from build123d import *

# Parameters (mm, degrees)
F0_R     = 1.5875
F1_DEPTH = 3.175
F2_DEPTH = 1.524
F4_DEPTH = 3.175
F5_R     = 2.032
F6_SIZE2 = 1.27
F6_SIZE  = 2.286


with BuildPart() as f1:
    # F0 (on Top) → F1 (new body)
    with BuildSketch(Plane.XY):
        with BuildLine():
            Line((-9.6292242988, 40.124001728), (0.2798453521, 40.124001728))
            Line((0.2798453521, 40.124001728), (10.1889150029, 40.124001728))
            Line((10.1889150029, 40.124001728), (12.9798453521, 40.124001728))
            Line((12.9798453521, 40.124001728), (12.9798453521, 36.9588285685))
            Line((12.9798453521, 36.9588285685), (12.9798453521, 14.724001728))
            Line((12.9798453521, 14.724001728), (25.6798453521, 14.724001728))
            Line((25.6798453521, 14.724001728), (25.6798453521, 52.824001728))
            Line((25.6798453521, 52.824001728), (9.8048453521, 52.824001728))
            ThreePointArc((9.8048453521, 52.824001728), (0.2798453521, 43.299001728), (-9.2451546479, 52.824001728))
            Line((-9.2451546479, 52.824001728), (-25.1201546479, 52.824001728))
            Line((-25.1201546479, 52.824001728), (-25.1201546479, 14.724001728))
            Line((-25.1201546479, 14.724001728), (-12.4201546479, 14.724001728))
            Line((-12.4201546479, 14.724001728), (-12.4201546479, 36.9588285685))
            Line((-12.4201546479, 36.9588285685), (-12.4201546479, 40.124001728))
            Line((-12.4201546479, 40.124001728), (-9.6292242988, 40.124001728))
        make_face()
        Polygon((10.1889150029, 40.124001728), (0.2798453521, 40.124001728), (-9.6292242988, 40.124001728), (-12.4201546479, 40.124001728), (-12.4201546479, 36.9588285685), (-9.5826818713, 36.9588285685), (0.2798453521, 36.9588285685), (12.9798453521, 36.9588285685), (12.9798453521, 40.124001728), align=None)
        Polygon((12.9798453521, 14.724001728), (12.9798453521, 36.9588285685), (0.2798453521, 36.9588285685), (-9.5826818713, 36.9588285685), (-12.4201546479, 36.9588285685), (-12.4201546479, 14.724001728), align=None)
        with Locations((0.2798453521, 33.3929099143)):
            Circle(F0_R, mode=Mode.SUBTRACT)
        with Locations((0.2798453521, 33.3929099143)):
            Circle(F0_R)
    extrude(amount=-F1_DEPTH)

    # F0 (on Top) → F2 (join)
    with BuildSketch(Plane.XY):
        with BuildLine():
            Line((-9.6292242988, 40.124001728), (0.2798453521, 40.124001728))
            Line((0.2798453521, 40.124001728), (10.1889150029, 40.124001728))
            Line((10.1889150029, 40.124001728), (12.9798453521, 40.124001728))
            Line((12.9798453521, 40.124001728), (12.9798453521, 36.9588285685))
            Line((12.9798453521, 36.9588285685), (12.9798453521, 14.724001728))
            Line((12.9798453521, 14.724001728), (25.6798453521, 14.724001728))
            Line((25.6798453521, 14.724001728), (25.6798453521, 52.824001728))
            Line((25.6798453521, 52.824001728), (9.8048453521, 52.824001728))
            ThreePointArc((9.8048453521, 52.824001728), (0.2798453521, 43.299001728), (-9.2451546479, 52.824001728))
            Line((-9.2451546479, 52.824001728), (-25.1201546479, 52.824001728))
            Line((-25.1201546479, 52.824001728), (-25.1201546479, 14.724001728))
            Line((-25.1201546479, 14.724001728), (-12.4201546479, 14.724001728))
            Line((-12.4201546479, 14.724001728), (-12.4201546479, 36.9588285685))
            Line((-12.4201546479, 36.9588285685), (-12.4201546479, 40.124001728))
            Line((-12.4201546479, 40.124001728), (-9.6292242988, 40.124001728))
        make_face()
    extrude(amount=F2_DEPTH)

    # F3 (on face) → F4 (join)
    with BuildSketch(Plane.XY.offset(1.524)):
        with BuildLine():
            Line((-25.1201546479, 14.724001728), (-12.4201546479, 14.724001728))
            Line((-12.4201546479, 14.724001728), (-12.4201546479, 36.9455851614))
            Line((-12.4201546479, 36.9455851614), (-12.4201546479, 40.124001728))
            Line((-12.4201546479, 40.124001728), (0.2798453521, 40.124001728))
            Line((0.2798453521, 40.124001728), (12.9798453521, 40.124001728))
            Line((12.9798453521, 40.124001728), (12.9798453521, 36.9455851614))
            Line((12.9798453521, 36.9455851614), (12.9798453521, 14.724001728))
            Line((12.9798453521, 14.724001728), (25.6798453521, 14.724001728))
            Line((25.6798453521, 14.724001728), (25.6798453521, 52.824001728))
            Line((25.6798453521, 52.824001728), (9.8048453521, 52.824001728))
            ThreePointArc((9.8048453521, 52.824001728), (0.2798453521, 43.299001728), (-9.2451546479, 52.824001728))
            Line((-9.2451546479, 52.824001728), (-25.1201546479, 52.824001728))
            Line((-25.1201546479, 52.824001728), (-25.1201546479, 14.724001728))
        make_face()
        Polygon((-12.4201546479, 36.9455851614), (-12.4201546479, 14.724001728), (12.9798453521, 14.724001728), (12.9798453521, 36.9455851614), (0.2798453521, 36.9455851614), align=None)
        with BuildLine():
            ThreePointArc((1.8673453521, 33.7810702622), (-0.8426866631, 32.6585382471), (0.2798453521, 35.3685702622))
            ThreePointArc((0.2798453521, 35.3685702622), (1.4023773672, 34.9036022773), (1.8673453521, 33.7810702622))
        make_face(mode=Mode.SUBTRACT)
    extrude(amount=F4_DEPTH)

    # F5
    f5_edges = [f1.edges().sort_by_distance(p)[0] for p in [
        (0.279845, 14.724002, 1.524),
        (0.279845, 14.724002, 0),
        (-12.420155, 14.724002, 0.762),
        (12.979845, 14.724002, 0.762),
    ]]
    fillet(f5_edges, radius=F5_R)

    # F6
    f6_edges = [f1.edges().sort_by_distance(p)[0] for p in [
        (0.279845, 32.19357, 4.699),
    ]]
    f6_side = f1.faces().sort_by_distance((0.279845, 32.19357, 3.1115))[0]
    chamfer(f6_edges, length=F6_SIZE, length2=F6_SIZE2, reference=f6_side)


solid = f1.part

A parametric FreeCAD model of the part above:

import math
import FreeCAD as App
import Part
import Sketcher
from FreeCAD import Vector
Q = App.Units.Quantity


def edges_at(feature, points):
    """Names of the edges that pass closest to the given points."""
    edges = feature.Shape.Edges
    near = lambda p: min(range(len(edges)), key=lambda i: edges[i].distToShape(Part.Vertex(*p))[0])
    return sorted({f"Edge{near(p) + 1}" for p in points})

doc = App.newDocument("Part")
body = doc.addObject("PartDesign::Body", "Body")

sketch1 = body.newObject("Sketcher::SketchObject", "Sketch")
sketch1.AttachmentSupport = (doc.getObject("XY_Plane"), [""])
sketch1.MapMode = "FlatFace"
sketch1.addGeometry([
    Part.LineSegment(Vector(25.679845, 14.724002, 0), Vector(25.679845, 52.824002, 0)),
    Part.LineSegment(Vector(25.679845, 52.824002, 0), Vector(9.804845, 52.824002, 0)),
    Part.ArcOfCircle(Part.Circle(Vector(0.279845, 52.824002, 0), Vector(0, 0, 1), 9.525), math.radians(180), math.radians(360)),
    Part.LineSegment(Vector(-9.245155, 52.824002, 0), Vector(-25.120155, 52.824002, 0)),
    Part.LineSegment(Vector(-25.120155, 52.824002, 0), Vector(-25.120155, 14.724002, 0)),
    Part.LineSegment(Vector(-25.120155, 14.724002, 0), Vector(25.679845, 14.724002, 0)),
], False)
sketch1.addConstraint([
    Sketcher.Constraint("Coincident", 0, 2, 1, 1),
    Sketcher.Constraint("Coincident", 1, 2, 2, 2),
    Sketcher.Constraint("Coincident", 2, 1, 3, 1),
    Sketcher.Constraint("Coincident", 3, 2, 4, 1),
    Sketcher.Constraint("Coincident", 4, 2, 5, 1),
    Sketcher.Constraint("Coincident", 5, 2, 0, 1),
    Sketcher.Constraint("Vertical", 0),
    Sketcher.Constraint("Horizontal", 1),
    Sketcher.Constraint("Horizontal", 3),
    Sketcher.Constraint("Vertical", 4),
    Sketcher.Constraint("Horizontal", 5),
    Sketcher.Constraint("Horizontal", 2, 3, 0, 2),
    Sketcher.Constraint("Horizontal", 1, 2, 2, 1),
    Sketcher.Constraint("Equal", 1, 3),
    Sketcher.Constraint("DistanceX", 5, 1, 5, 2, Q("2 in")),
    Sketcher.Constraint("DistanceY", 0, 1, 0, 2, Q("1.5 in")),
    Sketcher.Constraint("Radius", 2, Q("0.375 in")),
    Sketcher.Constraint("DistanceY", -1, 1, 2, 3, Q("52.824002 mm")),
    Sketcher.Constraint("DistanceX", -1, 1, 2, 3, Q("0.279845 mm")),
])
pad1 = body.newObject("PartDesign::Pad", "Pad")
pad1.Profile = sketch1
pad1.Length = Q("0.125 in")
pad1.Reversed = True

sketch2 = body.newObject("Sketcher::SketchObject", "Sketch001")
sketch2.AttachmentSupport = (doc.getObject("XY_Plane"), [""])
sketch2.MapMode = "FlatFace"
sketch2.addGeometry([
    Part.LineSegment(Vector(12.979845, 40.124002, 0), Vector(12.979845, 14.724002, 0)),
    Part.LineSegment(Vector(12.979845, 14.724002, 0), Vector(25.679845, 14.724002, 0)),
    Part.LineSegment(Vector(25.679845, 14.724002, 0), Vector(25.679845, 52.824002, 0)),
    Part.LineSegment(Vector(25.679845, 52.824002, 0), Vector(9.804845, 52.824002, 0)),
    Part.ArcOfCircle(Part.Circle(Vector(0.279845, 52.824002, 0), Vector(0, 0, 1), 9.525), math.radians(180), math.radians(360)),
    Part.LineSegment(Vector(-9.245155, 52.824002, 0), Vector(-25.120155, 52.824002, 0)),
    Part.LineSegment(Vector(-25.120155, 52.824002, 0), Vector(-25.120155, 14.724002, 0)),
    Part.LineSegment(Vector(-25.120155, 14.724002, 0), Vector(-12.420155, 14.724002, 0)),
    Part.LineSegment(Vector(-12.420155, 14.724002, 0), Vector(-12.420155, 40.124002, 0)),
    Part.LineSegment(Vector(-12.420155, 40.124002, 0), Vector(12.979845, 40.124002, 0)),
], False)
sketch2.addConstraint([
    Sketcher.Constraint("Coincident", 0, 2, 1, 1),
    Sketcher.Constraint("Coincident", 1, 2, 2, 1),
    Sketcher.Constraint("Coincident", 2, 2, 3, 1),
    Sketcher.Constraint("Coincident", 3, 2, 4, 2),
    Sketcher.Constraint("Coincident", 4, 1, 5, 1),
    Sketcher.Constraint("Coincident", 5, 2, 6, 1),
    Sketcher.Constraint("Coincident", 6, 2, 7, 1),
    Sketcher.Constraint("Coincident", 7, 2, 8, 1),
    Sketcher.Constraint("Coincident", 8, 2, 9, 1),
    Sketcher.Constraint("Coincident", 9, 2, 0, 1),
    Sketcher.Constraint("Vertical", 0),
    Sketcher.Constraint("Horizontal", 1),
    Sketcher.Constraint("Vertical", 2),
    Sketcher.Constraint("Horizontal", 3),
    Sketcher.Constraint("Horizontal", 5),
    Sketcher.Constraint("Vertical", 6),
    Sketcher.Constraint("Horizontal", 7),
    Sketcher.Constraint("Vertical", 8),
    Sketcher.Constraint("Horizontal", 9),
    Sketcher.Constraint("Horizontal", 4, 3, 2, 2),
    Sketcher.Constraint("Horizontal", 3, 2, 4, 1),
    Sketcher.Constraint("Horizontal", 1, 2, 6, 2),
    Sketcher.Constraint("Equal", 3, 5),
    Sketcher.Constraint("Equal", 1, 7),
    Sketcher.Constraint("Equal", 9, 0),
    Sketcher.Constraint("DistanceX", 9, 1, 9, 2, Q("1 in")),
    Sketcher.Constraint("DistanceX", 1, 1, 1, 2, Q("0.5 in")),
    Sketcher.Constraint("DistanceY", 2, 1, 2, 2, Q("1.5 in")),
    Sketcher.Constraint("Radius", 4, Q("0.375 in")),
    Sketcher.Constraint("DistanceY", -1, 1, 4, 3, Q("52.824002 mm")),
    Sketcher.Constraint("DistanceX", -1, 1, 4, 3, Q("0.279845 mm")),
])
pad2 = body.newObject("PartDesign::Pad", "Pad001")
pad2.Profile = sketch2
pad2.Length = Q("0.06 in")

sketch3 = body.newObject("Sketcher::SketchObject", "Sketch002")
sketch3.AttachmentSupport = (doc.getObject("XY_Plane"), [""])
sketch3.MapMode = "FlatFace"
sketch3.AttachmentOffset = App.Placement(Vector(0, 0, 0.06 * 25.4), App.Rotation())
sketch3.addGeometry([
    Part.LineSegment(Vector(-25.120155, 14.724002, 0), Vector(25.679845, 14.724002, 0)),
    Part.LineSegment(Vector(25.679845, 14.724002, 0), Vector(25.679845, 52.824002, 0)),
    Part.LineSegment(Vector(25.679845, 52.824002, 0), Vector(9.804845, 52.824002, 0)),
    Part.ArcOfCircle(Part.Circle(Vector(0.279845, 52.824002, 0), Vector(0, 0, 1), 9.525), math.radians(180), math.radians(360)),
    Part.LineSegment(Vector(-9.245155, 52.824002, 0), Vector(-25.120155, 52.824002, 0)),
    Part.LineSegment(Vector(-25.120155, 52.824002, 0), Vector(-25.120155, 14.724002, 0)),
    Part.ArcOfCircle(Part.Circle(Vector(0.279845, 33.78107, 0), Vector(0, 0, 1), 1.5875), math.radians(0), math.radians(90)),
    Part.ArcOfCircle(Part.Circle(Vector(0.279845, 33.78107, 0), Vector(0, 0, 1), 1.5875), math.radians(90), math.radians(360)),
    Part.LineSegment(Vector(-12.420155, 36.945585, 0), Vector(-12.420155, 40.124002, 0)),
    Part.LineSegment(Vector(-12.420155, 40.124002, 0), Vector(12.979845, 40.124002, 0)),
    Part.LineSegment(Vector(12.979845, 40.124002, 0), Vector(12.979845, 36.945585, 0)),
    Part.LineSegment(Vector(12.979845, 36.945585, 0), Vector(-12.420155, 36.945585, 0)),
], False)
sketch3.addConstraint([
    Sketcher.Constraint("Coincident", 0, 2, 1, 1),
    Sketcher.Constraint("Coincident", 1, 2, 2, 1),
    Sketcher.Constraint("Coincident", 2, 2, 3, 2),
    Sketcher.Constraint("Coincident", 3, 1, 4, 1),
    Sketcher.Constraint("Coincident", 4, 2, 5, 1),
    Sketcher.Constraint("Coincident", 5, 2, 0, 1),
    Sketcher.Constraint("Tangent", 6, 1, 7, 2),
    Sketcher.Constraint("Coincident", 7, 1, 6, 2),
    Sketcher.Constraint("Coincident", 8, 2, 9, 1),
    Sketcher.Constraint("Coincident", 9, 2, 10, 1),
    Sketcher.Constraint("Coincident", 10, 2, 11, 1),
    Sketcher.Constraint("Coincident", 11, 2, 8, 1),
    Sketcher.Constraint("Horizontal", 0),
    Sketcher.Constraint("Vertical", 1),
    Sketcher.Constraint("Horizontal", 2),
    Sketcher.Constraint("Horizontal", 4),
    Sketcher.Constraint("Vertical", 5),
    Sketcher.Constraint("Vertical", 8),
    Sketcher.Constraint("Horizontal", 9),
    Sketcher.Constraint("Vertical", 10),
    Sketcher.Constraint("Horizontal", 11),
    Sketcher.Constraint("Horizontal", 3, 3, 1, 2),
    Sketcher.Constraint("Horizontal", 2, 2, 3, 1),
    Sketcher.Constraint("Horizontal", 7, 3, 6, 1),
    Sketcher.Constraint("Vertical", 3, 3, 6, 3),
    Sketcher.Constraint("Vertical", 6, 3, 7, 1),
    Sketcher.Constraint("Equal", 2, 4),
    Sketcher.Constraint("DistanceX", 0, 1, 0, 2, Q("2 in")),
    Sketcher.Constraint("DistanceX", 9, 1, 9, 2, Q("1 in")),
    Sketcher.Constraint("DistanceY", 1, 1, 1, 2, Q("1.5 in")),
    Sketcher.Constraint("Radius", 3, Q("0.375 in")),
    Sketcher.Constraint("Radius", 6, Q("0.0625 in")),
    Sketcher.Constraint("DistanceY", 8, 2, 3, 1, Q("0.5 in")),
    Sketcher.Constraint("DistanceX", 8, 2, 7, 1, Q("0.5 in")),
    Sketcher.Constraint("DistanceY", -1, 1, 3, 3, Q("52.824002 mm")),
    Sketcher.Constraint("DistanceY", 8, 1, 8, 2, Q("3.178417 mm")),
    Sketcher.Constraint("DistanceY", -1, 1, 6, 3, Q("33.78107 mm")),
    Sketcher.Constraint("DistanceX", -1, 1, 3, 3, Q("0.279845 mm")),
])
pad3 = body.newObject("PartDesign::Pad", "Pad002")
pad3.Profile = sketch3
pad3.Length = Q("0.125 in")
doc.recompute()

fillet = body.newObject("PartDesign::Fillet", "Fillet")
fillet.Base = (pad3, edges_at(pad3, [
    (0.28, 14.724, 1.524),
    (0.28, 14.724, 0),
    (-12.42, 14.724, 0.762),
    (12.98, 14.724, 0.762),
]))
fillet.Radius = Q("0.08 in")
doc.recompute()

chamfer = body.newObject("PartDesign::Chamfer", "Chamfer")
chamfer.Base = (fillet, edges_at(fillet, [(-0.843, 32.659, 4.699)]))
chamfer.ChamferType = "Two distances"
chamfer.Size = Q("0.09 in")
chamfer.Size2 = Q("0.05 in")

doc.recompute()
